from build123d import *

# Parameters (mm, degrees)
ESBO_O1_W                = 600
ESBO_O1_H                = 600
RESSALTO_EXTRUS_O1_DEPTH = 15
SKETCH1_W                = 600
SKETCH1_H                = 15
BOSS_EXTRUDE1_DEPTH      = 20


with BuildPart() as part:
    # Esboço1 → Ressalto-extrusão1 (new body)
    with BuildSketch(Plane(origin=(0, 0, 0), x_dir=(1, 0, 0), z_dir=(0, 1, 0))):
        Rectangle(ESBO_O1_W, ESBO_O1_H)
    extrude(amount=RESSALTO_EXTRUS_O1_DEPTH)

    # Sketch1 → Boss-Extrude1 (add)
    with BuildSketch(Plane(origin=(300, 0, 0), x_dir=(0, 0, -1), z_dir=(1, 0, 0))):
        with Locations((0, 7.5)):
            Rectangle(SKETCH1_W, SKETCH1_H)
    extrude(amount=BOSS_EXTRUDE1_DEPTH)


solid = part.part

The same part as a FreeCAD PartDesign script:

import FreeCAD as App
import Part
import Sketcher

doc = App.newDocument("Part")
body = doc.addObject("PartDesign::Body", "Body")

# Sketch on XZ plane
sketch1 = body.newObject("Sketcher::SketchObject", "Sketch")
sketch1.AttachmentSupport = (doc.getObject("XZ_Plane"), [""])
sketch1.MapMode = "FlatFace"
sketch1.addGeometry([
    Part.LineSegment(App.Vector(-300, -300, 0), App.Vector(-300, 300, 0)),
    Part.LineSegment(App.Vector(-300, 300, 0), App.Vector(300, 300, 0)),
    Part.LineSegment(App.Vector(300, 300, 0), App.Vector(300, -300, 0)),
    Part.LineSegment(App.Vector(300, -300, 0), App.Vector(-300, -300, 0)),
], False)
sketch1.addConstraint([
    Sketcher.Constraint("Coincident", 0, 2, 1, 1),
    Sketcher.Constraint("Coincident", 1, 2, 2, 1),
    Sketcher.Constraint("Coincident", 2, 2, 3, 1),
    Sketcher.Constraint("Coincident", 3, 2, 0, 1),
    Sketcher.Constraint("Vertical", 0),
    Sketcher.Constraint("Horizontal", 1),
    Sketcher.Constraint("Vertical", 2),
    Sketcher.Constraint("Horizontal", 3),
    Sketcher.Constraint("Symmetric", 0, 2, 2, 2, -1, 1),
    Sketcher.Constraint("Equal", 3, 0),
    Sketcher.Constraint("DistanceX", 1, 1, 1, 2, 600.0),
])
pad1 = body.newObject("PartDesign::Pad", "Pad")
pad1.Profile = sketch1
pad1.Length = 15
pad1.Reversed = True

# Sketch on YZ plane
sketch2 = body.newObject("Sketcher::SketchObject", "Sketch001")
sketch2.AttachmentSupport = (doc.getObject("YZ_Plane"), [""])
sketch2.MapMode = "FlatFace"
sketch2.AttachmentOffset = App.Placement(App.Vector(0, 0, 300), App.Rotation())
sketch2.addGeometry([
    Part.LineSegment(App.Vector(15, 300, 0), App.Vector(0, 300, 0)),
    Part.LineSegment(App.Vector(0, 300, 0), App.Vector(0, -300, 0)),
    Part.LineSegment(App.Vector(0, -300, 0), App.Vector(15, -300, 0)),
    Part.LineSegment(App.Vector(15, -300, 0), App.Vector(15, 300, 0)),
], False)
sketch2.addConstraint([
    Sketcher.Constraint("Coincident", 0, 2, 1, 1),
    Sketcher.Constraint("Coincident", 1, 2, 2, 1),
    Sketcher.Constraint("Coincident", 2, 2, 3, 1),
    Sketcher.Constraint("Coincident", 3, 2, 0, 1),
    Sketcher.Constraint("Horizontal", 0),
    Sketcher.Constraint("Vertical", 1),
    Sketcher.Constraint("Horizontal", 2),
    Sketcher.Constraint("Vertical", 3),
    Sketcher.Constraint("Symmetric", 0, 2, 1, 2, -1, 1),
    Sketcher.Constraint("DistanceX", 0, 2, 0, 1, 15.0),
    Sketcher.Constraint("DistanceY", 1, 2, 1, 1, 600.0),
])
pad2 = body.newObject("PartDesign::Pad", "Pad001")
pad2.Profile = sketch2
pad2.Length = 20

doc.recompute()
